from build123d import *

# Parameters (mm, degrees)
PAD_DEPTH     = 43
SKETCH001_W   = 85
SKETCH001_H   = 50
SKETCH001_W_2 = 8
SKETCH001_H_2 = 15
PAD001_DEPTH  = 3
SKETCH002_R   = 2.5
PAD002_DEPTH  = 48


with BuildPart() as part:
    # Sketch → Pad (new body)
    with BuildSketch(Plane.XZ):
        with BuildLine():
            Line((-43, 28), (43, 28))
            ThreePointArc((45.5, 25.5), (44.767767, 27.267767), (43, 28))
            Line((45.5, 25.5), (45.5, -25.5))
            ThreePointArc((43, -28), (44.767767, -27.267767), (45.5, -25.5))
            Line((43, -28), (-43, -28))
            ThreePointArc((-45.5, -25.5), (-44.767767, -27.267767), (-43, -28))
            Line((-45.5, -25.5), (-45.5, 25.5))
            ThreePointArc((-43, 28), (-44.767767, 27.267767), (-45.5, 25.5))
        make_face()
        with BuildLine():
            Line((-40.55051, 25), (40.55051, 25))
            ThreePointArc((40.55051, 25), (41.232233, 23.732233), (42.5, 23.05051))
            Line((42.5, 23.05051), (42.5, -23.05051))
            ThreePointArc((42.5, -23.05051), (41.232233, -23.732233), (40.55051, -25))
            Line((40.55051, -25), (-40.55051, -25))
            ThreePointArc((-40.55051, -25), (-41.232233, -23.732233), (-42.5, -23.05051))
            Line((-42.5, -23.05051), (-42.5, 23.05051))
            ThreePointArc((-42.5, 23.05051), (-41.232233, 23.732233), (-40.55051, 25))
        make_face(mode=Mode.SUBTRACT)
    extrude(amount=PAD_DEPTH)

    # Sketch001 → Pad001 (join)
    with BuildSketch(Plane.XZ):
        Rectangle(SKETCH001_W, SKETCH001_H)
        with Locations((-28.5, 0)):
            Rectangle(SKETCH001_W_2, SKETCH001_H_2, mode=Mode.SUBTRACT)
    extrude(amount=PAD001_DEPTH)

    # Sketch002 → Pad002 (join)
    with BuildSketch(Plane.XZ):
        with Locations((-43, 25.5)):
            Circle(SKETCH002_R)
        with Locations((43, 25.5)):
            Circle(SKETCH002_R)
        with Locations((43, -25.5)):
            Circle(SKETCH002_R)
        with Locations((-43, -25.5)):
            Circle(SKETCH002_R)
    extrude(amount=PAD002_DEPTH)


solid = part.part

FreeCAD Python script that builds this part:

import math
import FreeCAD as App
import Part
import Sketcher

V = App.Vector
Q = App.Units.Quantity


def add_polygon(sketch, points):
    """Adds a closed chain of lines whose ends are joined by coincident constraints."""
    first, n = sketch.GeometryCount, len(points)
    for a, b in zip(points, points[1:] + points[:1]):
        sketch.addGeometry(Part.LineSegment(App.Vector(*a, 0), App.Vector(*b, 0)), False)
    for i in range(n):
        sketch.addConstraint(Sketcher.Constraint("Coincident", first + i, 2, first + (i + 1) % n, 1))

doc = App.newDocument("Part")
body = doc.addObject("PartDesign::Body", "Body")

sketch1 = doc.addObject("Sketcher::SketchObject", "Sketch")
body.addObject(sketch1)
sketch1.AttachmentSupport = (doc.XZ_Plane, [""])
sketch1.MapMode = "FlatFace"
sketch1.addGeometry([
    Part.LineSegment(V(43, 28, 0), V(-43, 28, 0)),
    Part.ArcOfCircle(Part.Circle(V(-43, 25.5, 0), V(0, 0, 1), 2.5), math.radians(90), math.radians(180)),
    Part.LineSegment(V(-45.5, 25.5, 0), V(-45.5, -25.5, 0)),
    Part.ArcOfCircle(Part.Circle(V(-43, -25.5, 0), V(0, 0, 1), 2.5), math.radians(180), math.radians(270)),
    Part.LineSegment(V(-43, -28, 0), V(43, -28, 0)),
    Part.ArcOfCircle(Part.Circle(V(43, -25.5, 0), V(0, 0, 1), 2.5), math.radians(-90), math.radians(0)),
    Part.LineSegment(V(45.5, -25.5, 0), V(45.5, 25.5, 0)),
    Part.ArcOfCircle(Part.Circle(V(43, 25.5, 0), V(0, 0, 1), 2.5), math.radians(0), math.radians(90)),
    Part.LineSegment(V(-40.6, 25, 0), V(40.6, 25, 0)),
    Part.ArcOfCircle(Part.Circle(V(43, 25.5, 0), V(0, 0, 1), 2.5), math.radians(-168), math.radians(-102)),
    Part.LineSegment(V(42.5, 23.1, 0), V(42.5, -23.1, 0)),
    Part.ArcOfCircle(Part.Circle(V(43, -25.5, 0), V(0, 0, 1), 2.5), math.radians(102), math.radians(168)),
    Part.LineSegment(V(40.6, -25, 0), V(-40.6, -25, 0)),
    Part.ArcOfCircle(Part.Circle(V(-43, -25.5, 0), V(0, 0, 1), 2.5), math.radians(12), math.radians(78)),
    Part.LineSegment(V(-42.5, -23.1, 0), V(-42.5, 23.1, 0)),
    Part.ArcOfCircle(Part.Circle(V(-43, 25.5, 0), V(0, 0, 1), 2.5), math.radians(-78), math.radians(-12)),
], False)
sketch1.addConstraint([
    Sketcher.Constraint("Tangent", 0, 2, 1, 1),
    Sketcher.Constraint("Tangent", 1, 2, 2, 1),
    Sketcher.Constraint("Tangent", 2, 2, 3, 1),
    Sketcher.Constraint("Tangent", 3, 2, 4, 1),
    Sketcher.Constraint("Tangent", 4, 2, 5, 1),
    Sketcher.Constraint("Tangent", 5, 2, 6, 1),
    Sketcher.Constraint("Tangent", 6, 2, 7, 1),
    Sketcher.Constraint("Tangent", 7, 2, 0, 1),
    Sketcher.Constraint("Coincident", 8, 2, 9, 1),
    Sketcher.Constraint("Coincident", 9, 2, 10, 1),
    Sketcher.Constraint("Coincident", 10, 2, 11, 1),
    Sketcher.Constraint("Coincident", 11, 2, 12, 1),
    Sketcher.Constraint("Coincident", 12, 2, 13, 1),
    Sketcher.Constraint("Coincident", 13, 2, 14, 1),
    Sketcher.Constraint("Coincident", 14, 2, 15, 1),
    Sketcher.Constraint("Coincident", 15, 2, 8, 1),
    Sketcher.Constraint("Horizontal", 0),
    Sketcher.Constraint("Vertical", 2),
    Sketcher.Constraint("Horizontal", 4),
    Sketcher.Constraint("Vertical", 6),
    Sketcher.Constraint("Horizontal", 8),
    Sketcher.Constraint("Vertical", 10),
    Sketcher.Constraint("Horizontal", 12),
    Sketcher.Constraint("Vertical", 14),
    Sketcher.Constraint("Coincident", 9, 3, 7, 3),
    Sketcher.Constraint("Coincident", 11, 3, 5, 3),
    Sketcher.Constraint("Coincident", 13, 3, 3, 3),
    Sketcher.Constraint("Coincident", 15, 3, 1, 3),
    Sketcher.Constraint("Equal", 1, 3),
    Sketcher.Constraint("Equal", 3, 5),
    Sketcher.Constraint("Equal", 5, 7),
    Sketcher.Constraint("Equal", 7, 9),
    Sketcher.Constraint("Equal", 9, 11),
    Sketcher.Constraint("Equal", 11, 13),
    Sketcher.Constraint("Equal", 13, 15),
    Sketcher.Constraint("Symmetric", 1, 3, 5, 3, -1, 1),
    Sketcher.Constraint("Horizontal", 10, 2, 13, 2),
    Sketcher.Constraint("Vertical", 8, 2, 11, 2),
    Sketcher.Constraint("Radius", 1, Q("2.5 mm")),
    Sketcher.Constraint("DistanceX", 0, 2, 0, 1, Q("86 mm")),
    Sketcher.Constraint("DistanceY", 2, 2, 2, 1, Q("51 mm")),
    Sketcher.Constraint("DistanceY", -1, 1, 8, 2, Q("25 mm")),
    Sketcher.Constraint("DistanceX", 9, 2, 6, 2, Q("3 mm")),
])
pad1 = doc.addObject("PartDesign::Pad", "Pad")
body.addObject(pad1)
pad1.Profile = sketch1
pad1.Length = 43

sketch2 = doc.addObject("Sketcher::SketchObject", "Sketch001")
body.addObject(sketch2)
sketch2.AttachmentSupport = (doc.XZ_Plane, [""])
sketch2.MapMode = "FlatFace"
add_polygon(sketch2, [(-42, 25), (-42, -25), (42, -25), (42, 25)])
add_polygon(sketch2, [(-24, -8), (-32, -8), (-32, 8), (-24, 8)])
sketch2.addConstraint([
    Sketcher.Constraint("Vertical", 0),
    Sketcher.Constraint("Horizontal", 1),
    Sketcher.Constraint("Vertical", 2),
    Sketcher.Constraint("Horizontal", 3),
    Sketcher.Constraint("Horizontal", 4),
    Sketcher.Constraint("Vertical", 5),
    Sketcher.Constraint("Horizontal", 6),
    Sketcher.Constraint("Vertical", 7),
    Sketcher.Constraint("Symmetric", 0, 2, 2, 2, -1, 1),
    Sketcher.Constraint("DistanceX", 1, 1, 1, 2, Q("85 mm")),
    Sketcher.Constraint("DistanceX", 4, 2, 4, 1, Q("8 mm")),
    Sketcher.Constraint("DistanceY", 0, 2, 0, 1, Q("50 mm")),
    Sketcher.Constraint("DistanceY", 5, 1, 5, 2, Q("15 mm")),
    Sketcher.Constraint("DistanceX", 0, 2, 4, 2, Q("10 mm")),
    Sketcher.Constraint("DistanceY", 4, 2, -1, 1, Q("7.5 mm")),
])
pad2 = doc.addObject("PartDesign::Pad", "Pad001")
body.addObject(pad2)
pad2.Profile = sketch2
pad2.Length = 3

sketch3 = doc.addObject("Sketcher::SketchObject", "Sketch002")
body.addObject(sketch3)
sketch3.AttachmentSupport = (doc.XZ_Plane, [""])
sketch3.MapMode = "FlatFace"
sketch3.addGeometry([
    Part.Circle(V(-43, 25.5, 0), V(0, 0, 1), 2.5),
    Part.Circle(V(43, 25.5, 0), V(0, 0, 1), 2.5),
    Part.Circle(V(43, -25.5, 0), V(0, 0, 1), 2.5),
    Part.Circle(V(-43, -25.5, 0), V(0, 0, 1), 2.5),
], False)
sketch3.addConstraint([
    Sketcher.Constraint("Equal", 0, 1),
    Sketcher.Constraint("Equal", 1, 2),
    Sketcher.Constraint("Equal", 2, 3),
    Sketcher.Constraint("Symmetric", 0, 3, 2, 3, -1, 1),
    Sketcher.Constraint("Symmetric", 1, 3, 3, 3, -1, 1),
    Sketcher.Constraint("Symmetric", 0, 3, 1, 3, -2),
    Sketcher.Constraint("Diameter", 0, Q("5 mm")),
    Sketcher.Constraint("DistanceX", 0, 3, -1, 1, Q("43 mm")),
    Sketcher.Constraint("DistanceY", 2, 3, 1, 3, Q("51 mm")),
])
pad3 = doc.addObject("PartDesign::Pad", "Pad002")
body.addObject(pad3)
pad3.Profile = sketch3
pad3.Length = 48

doc.recompute()
